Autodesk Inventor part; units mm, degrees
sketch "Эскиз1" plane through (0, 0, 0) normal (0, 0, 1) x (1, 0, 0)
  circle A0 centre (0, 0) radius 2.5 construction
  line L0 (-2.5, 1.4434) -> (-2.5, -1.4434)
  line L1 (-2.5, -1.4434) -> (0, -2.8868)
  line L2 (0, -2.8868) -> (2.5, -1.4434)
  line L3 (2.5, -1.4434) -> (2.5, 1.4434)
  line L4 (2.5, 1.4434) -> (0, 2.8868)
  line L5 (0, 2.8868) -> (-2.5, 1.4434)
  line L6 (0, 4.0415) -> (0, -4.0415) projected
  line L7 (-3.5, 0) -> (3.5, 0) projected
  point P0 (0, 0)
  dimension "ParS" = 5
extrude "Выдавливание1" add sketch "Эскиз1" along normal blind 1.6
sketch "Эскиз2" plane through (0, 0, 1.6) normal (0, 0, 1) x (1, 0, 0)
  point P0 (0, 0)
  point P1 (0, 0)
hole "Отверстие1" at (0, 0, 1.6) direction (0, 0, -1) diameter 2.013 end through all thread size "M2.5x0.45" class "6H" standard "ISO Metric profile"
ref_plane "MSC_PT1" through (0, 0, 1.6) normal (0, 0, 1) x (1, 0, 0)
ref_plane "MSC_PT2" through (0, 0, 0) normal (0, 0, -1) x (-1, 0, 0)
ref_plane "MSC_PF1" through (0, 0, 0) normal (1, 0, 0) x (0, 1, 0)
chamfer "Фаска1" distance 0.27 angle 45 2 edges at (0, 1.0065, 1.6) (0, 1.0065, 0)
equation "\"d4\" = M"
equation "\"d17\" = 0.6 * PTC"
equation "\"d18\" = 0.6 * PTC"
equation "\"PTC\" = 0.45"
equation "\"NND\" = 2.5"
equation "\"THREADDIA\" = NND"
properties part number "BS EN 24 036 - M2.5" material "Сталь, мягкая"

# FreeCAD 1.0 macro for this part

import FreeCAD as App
import Part
import Sketcher
from FreeCAD import Vector
Q = App.Units.Quantity


def edges_at(feature, points):
    """Names of the edges that pass closest to the given points."""
    edges = feature.Shape.Edges
    near = lambda p: min(range(len(edges)), key=lambda i: edges[i].distToShape(Part.Vertex(*p))[0])
    return sorted({f"Edge{near(p) + 1}" for p in points})

doc = App.newDocument("Part")
body = doc.addObject("PartDesign::Body", "Body")

# Sketch on XY plane
sketch1 = body.newObject("Sketcher::SketchObject", "Sketch")
sketch1.AttachmentSupport = (doc.getObject("XY_Plane"), [""])
sketch1.MapMode = "FlatFace"
sketch1.addGeometry([
    Part.LineSegment(Vector(0, 2.9, 0), Vector(-2.5, 1.4, 0)),  # 0
    Part.LineSegment(Vector(-2.5, 1.4, 0), Vector(-2.5, -1.4, 0)),  # 1
    Part.LineSegment(Vector(-2.5, -1.4, 0), Vector(0, -2.9, 0)),  # 2
    Part.LineSegment(Vector(0, -2.9, 0), Vector(2.5, -1.4, 0)),  # 3
    Part.LineSegment(Vector(2.5, -1.4, 0), Vector(2.5, 1.4, 0)),  # 4
    Part.LineSegment(Vector(2.5, 1.4, 0), Vector(0, 2.9, 0)),  # 5
], False)
sketch1.addConstraint([
    Sketcher.Constraint("Coincident", 0, 2, 1, 1),
    Sketcher.Constraint("Coincident", 1, 2, 2, 1),
    Sketcher.Constraint("Coincident", 2, 2, 3, 1),
    Sketcher.Constraint("Coincident", 3, 2, 4, 1),
    Sketcher.Constraint("Coincident", 4, 2, 5, 1),
    Sketcher.Constraint("Coincident", 5, 2, 0, 1),
    Sketcher.Constraint("Vertical", 1),
    Sketcher.Constraint("Vertical", 4),
    Sketcher.Constraint("Symmetric", 0, 2, 3, 2, -1, 1),
    Sketcher.Constraint("Symmetric", 2, 2, 5, 2, -1, 1),
    Sketcher.Constraint("PointOnObject", 2, 2, -2),
    Sketcher.Constraint("Parallel", 2, 5),
    Sketcher.Constraint("Horizontal", 1, 2, 3, 2),
    Sketcher.Constraint("Angle", 0, Q("-149.9996 deg")),
    Sketcher.Constraint("DistanceX", 1, 2, 3, 2, Q("5 mm")),
    Sketcher.Constraint("DistanceY", 1, 2, 1, 1, Q("2.8868 mm")),
])
pad1 = body.newObject("PartDesign::Pad", "Pad")
pad1.Profile = sketch1
pad1.Length = Q("0.0629921 in")

# Sketch on XY plane
sketch2 = body.newObject("Sketcher::SketchObject", "Sketch001")
sketch2.AttachmentSupport = (doc.getObject("XY_Plane"), [""])
sketch2.MapMode = "FlatFace"
sketch2.AttachmentOffset = App.Placement(Vector(0, 0, 0.0629921 * 25.4), App.Rotation())
sketch2.addGeometry(Part.Circle(Vector(0, 0, 0), Vector(0, 0, 1), 1), False)
sketch2.addConstraint([
    Sketcher.Constraint("Coincident", 0, 3, -1, 1),
    Sketcher.Constraint("Diameter", 0, Q("2.013 mm")),
])
doc.recompute()
hole = body.newObject("PartDesign::Hole", "Hole")
hole.Profile = sketch2
hole.ThreadType = "None"
hole.Diameter = 2.013
hole.DepthType = "ThroughAll"
doc.recompute()

chamfer = body.newObject("PartDesign::Chamfer", "Chamfer")
chamfer.Base = (hole, edges_at(hole, [(0, 1.006, 1.6), (0, 1.006, 0)]))
chamfer.Size = 0.27

doc.recompute()
